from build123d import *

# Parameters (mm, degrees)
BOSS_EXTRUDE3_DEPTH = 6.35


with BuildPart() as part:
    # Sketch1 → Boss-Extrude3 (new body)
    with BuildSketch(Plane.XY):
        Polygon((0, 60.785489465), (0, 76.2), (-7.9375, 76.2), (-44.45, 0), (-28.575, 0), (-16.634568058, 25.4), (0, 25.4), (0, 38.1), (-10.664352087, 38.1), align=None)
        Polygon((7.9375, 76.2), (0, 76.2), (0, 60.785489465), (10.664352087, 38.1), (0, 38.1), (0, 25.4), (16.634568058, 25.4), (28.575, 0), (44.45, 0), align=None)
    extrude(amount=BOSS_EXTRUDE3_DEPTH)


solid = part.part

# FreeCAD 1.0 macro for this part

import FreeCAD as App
import Part
import Sketcher
Q = App.Units.Quantity

doc = App.newDocument("Part")
body = doc.addObject("PartDesign::Body", "Body")

sketch1 = body.newObject("Sketcher::SketchObject", "Sketch")
sketch1.AttachmentSupport = (doc.getObject("XY_Plane"), [""])
sketch1.MapMode = "FlatFace"
sketch1.addGeometry(Part.LineSegment(App.Vector(-8, 76, 0), App.Vector(-44, 0, 0)), False)
sketch1.addGeometry(Part.LineSegment(App.Vector(-44, 0, 0), App.Vector(-29, 0, 0)), False)
sketch1.addGeometry(Part.LineSegment(App.Vector(-29, 0, 0), App.Vector(-17, 25, 0)), False)
sketch1.addGeometry(Part.LineSegment(App.Vector(-17, 25, 0), App.Vector(17, 25, 0)), False)
sketch1.addGeometry(Part.LineSegment(App.Vector(17, 25, 0), App.Vector(29, 0, 0)), False)
sketch1.addGeometry(Part.LineSegment(App.Vector(29, 0, 0), App.Vector(44, 0, 0)), False)
sketch1.addGeometry(Part.LineSegment(App.Vector(44, 0, 0), App.Vector(8, 76, 0)), False)
sketch1.addGeometry(Part.LineSegment(App.Vector(8, 76, 0), App.Vector(-8, 76, 0)), False)
sketch1.addGeometry(Part.LineSegment(App.Vector(-11, 38, 0), App.Vector(0, 61, 0)), False)
sketch1.addGeometry(Part.LineSegment(App.Vector(0, 61, 0), App.Vector(11, 38, 0)), False)
sketch1.addGeometry(Part.LineSegment(App.Vector(11, 38, 0), App.Vector(-11, 38, 0)), False)
sketch1.addConstraint(Sketcher.Constraint("Coincident", 0, 2, 1, 1))
sketch1.addConstraint(Sketcher.Constraint("Coincident", 1, 2, 2, 1))
sketch1.addConstraint(Sketcher.Constraint("Coincident", 2, 2, 3, 1))
sketch1.addConstraint(Sketcher.Constraint("Coincident", 3, 2, 4, 1))
sketch1.addConstraint(Sketcher.Constraint("Coincident", 4, 2, 5, 1))
sketch1.addConstraint(Sketcher.Constraint("Coincident", 5, 2, 6, 1))
sketch1.addConstraint(Sketcher.Constraint("Coincident", 6, 2, 7, 1))
sketch1.addConstraint(Sketcher.Constraint("Coincident", 7, 2, 0, 1))
sketch1.addConstraint(Sketcher.Constraint("Coincident", 8, 2, 9, 1))
sketch1.addConstraint(Sketcher.Constraint("Coincident", 9, 2, 10, 1))
sketch1.addConstraint(Sketcher.Constraint("Coincident", 10, 2, 8, 1))
sketch1.addConstraint(Sketcher.Constraint("Horizontal", 1))
sketch1.addConstraint(Sketcher.Constraint("Horizontal", 3))
sketch1.addConstraint(Sketcher.Constraint("Horizontal", 5))
sketch1.addConstraint(Sketcher.Constraint("Horizontal", 7))
sketch1.addConstraint(Sketcher.Constraint("Horizontal", 10))
sketch1.addConstraint(Sketcher.Constraint("Symmetric", 1, 2, 4, 2, -1, 1))
sketch1.addConstraint(Sketcher.Constraint("Symmetric", 0, 2, 5, 2, -2))
sketch1.addConstraint(Sketcher.Constraint("PointOnObject", 8, 2, -2))
sketch1.addConstraint(Sketcher.Constraint("Parallel", 2, 8))
sketch1.addConstraint(Sketcher.Constraint("Parallel", 4, 9))
sketch1.addConstraint(Sketcher.Constraint("Equal", 5, 7))
sketch1.addConstraint(Sketcher.Constraint("Equal", 2, 4))
sketch1.addConstraint(Sketcher.Constraint("Equal", 0, 6))
sketch1.addConstraint(Sketcher.Constraint("DistanceY", -1, 1, 2, 2, Q("1 in")))
sketch1.addConstraint(Sketcher.Constraint("DistanceY", -1, 1, 6, 2, Q("3 in")))
sketch1.addConstraint(Sketcher.Constraint("DistanceY", -1, 1, 9, 2, Q("1.5 in")))
sketch1.addConstraint(Sketcher.Constraint("DistanceX", 0, 2, 5, 2, Q("3.5 in")))
sketch1.addConstraint(Sketcher.Constraint("DistanceX", 1, 1, 1, 2, Q("0.625 in")))
sketch1.addConstraint(Sketcher.Constraint("DistanceX", 3, 1, 3, 2, 33.269136))
sketch1.addConstraint(Sketcher.Constraint("DistanceX", 10, 2, 10, 1, 21.328704))
pad1 = body.newObject("PartDesign::Pad", "Pad")
pad1.Profile = sketch1
pad1.Length = Q("0.25 in")

doc.recompute()
